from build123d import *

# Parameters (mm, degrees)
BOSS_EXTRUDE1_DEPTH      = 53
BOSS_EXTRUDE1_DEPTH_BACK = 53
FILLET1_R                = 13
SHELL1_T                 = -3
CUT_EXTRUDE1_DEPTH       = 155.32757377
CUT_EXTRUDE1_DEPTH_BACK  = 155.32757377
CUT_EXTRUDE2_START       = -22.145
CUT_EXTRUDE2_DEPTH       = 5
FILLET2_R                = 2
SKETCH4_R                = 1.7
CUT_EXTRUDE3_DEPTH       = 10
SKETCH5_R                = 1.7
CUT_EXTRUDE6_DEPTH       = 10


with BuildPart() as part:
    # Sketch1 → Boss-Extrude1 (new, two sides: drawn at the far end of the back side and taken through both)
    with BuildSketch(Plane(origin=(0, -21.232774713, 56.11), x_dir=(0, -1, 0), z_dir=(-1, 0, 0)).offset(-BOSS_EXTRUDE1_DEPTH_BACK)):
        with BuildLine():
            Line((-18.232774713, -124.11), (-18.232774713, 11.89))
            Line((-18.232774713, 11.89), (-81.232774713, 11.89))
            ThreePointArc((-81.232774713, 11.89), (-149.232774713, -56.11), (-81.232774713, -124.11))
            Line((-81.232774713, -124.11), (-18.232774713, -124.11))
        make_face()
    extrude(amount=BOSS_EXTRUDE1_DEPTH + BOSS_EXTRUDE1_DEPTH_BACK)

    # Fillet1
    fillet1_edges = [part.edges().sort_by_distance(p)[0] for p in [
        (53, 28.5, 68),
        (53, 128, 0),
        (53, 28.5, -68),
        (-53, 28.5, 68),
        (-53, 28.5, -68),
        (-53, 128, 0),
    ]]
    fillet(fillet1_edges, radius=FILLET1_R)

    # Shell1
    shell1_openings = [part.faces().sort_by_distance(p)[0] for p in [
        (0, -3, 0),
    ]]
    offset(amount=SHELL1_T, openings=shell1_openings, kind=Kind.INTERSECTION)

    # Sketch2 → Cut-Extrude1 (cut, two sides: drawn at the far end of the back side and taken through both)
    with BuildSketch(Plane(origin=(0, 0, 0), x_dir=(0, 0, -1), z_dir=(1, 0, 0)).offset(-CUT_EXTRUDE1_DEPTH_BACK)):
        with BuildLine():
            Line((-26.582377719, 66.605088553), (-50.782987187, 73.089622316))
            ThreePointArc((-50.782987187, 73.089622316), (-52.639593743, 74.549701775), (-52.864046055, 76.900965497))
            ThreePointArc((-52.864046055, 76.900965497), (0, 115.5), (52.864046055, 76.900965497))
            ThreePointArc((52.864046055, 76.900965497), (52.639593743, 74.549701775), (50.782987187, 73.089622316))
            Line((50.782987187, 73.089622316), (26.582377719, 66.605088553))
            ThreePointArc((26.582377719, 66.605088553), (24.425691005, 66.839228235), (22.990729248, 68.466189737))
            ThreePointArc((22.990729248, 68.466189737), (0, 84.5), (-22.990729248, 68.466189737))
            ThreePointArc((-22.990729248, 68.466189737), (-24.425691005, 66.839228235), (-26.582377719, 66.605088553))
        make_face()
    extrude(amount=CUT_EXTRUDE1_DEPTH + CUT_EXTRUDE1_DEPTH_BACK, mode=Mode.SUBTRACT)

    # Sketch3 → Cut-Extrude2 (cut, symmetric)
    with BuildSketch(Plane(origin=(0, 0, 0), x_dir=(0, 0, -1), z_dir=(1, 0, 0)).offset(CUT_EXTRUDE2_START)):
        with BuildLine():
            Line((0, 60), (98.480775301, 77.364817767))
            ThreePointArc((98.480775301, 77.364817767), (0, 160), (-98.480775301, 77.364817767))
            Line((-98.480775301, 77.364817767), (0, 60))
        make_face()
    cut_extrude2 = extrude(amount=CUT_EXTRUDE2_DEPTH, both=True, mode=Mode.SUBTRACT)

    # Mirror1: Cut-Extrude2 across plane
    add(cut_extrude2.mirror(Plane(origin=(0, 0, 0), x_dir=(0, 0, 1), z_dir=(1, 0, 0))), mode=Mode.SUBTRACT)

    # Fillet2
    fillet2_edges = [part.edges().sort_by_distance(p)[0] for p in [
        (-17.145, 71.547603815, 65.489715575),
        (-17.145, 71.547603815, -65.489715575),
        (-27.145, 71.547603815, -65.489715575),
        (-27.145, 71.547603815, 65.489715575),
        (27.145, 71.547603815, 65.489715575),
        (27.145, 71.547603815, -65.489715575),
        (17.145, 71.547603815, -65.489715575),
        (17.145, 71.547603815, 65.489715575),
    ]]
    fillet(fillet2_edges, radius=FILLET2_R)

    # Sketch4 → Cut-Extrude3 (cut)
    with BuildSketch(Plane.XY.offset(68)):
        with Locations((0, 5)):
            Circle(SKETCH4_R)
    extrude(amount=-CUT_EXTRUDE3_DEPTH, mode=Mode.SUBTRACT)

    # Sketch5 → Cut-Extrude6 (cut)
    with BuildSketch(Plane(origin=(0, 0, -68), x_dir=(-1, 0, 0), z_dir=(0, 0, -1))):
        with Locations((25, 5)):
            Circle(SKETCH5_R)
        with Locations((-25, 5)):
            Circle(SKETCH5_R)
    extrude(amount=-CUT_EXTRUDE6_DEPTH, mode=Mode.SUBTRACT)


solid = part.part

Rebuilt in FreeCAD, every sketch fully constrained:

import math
import FreeCAD as App
import Part
import Sketcher
from FreeCAD import Vector
Q = App.Units.Quantity


def edges_at(feature, points):
    """Names of the edges that pass closest to the given points."""
    edges = feature.Shape.Edges
    near = lambda p: min(range(len(edges)), key=lambda i: edges[i].distToShape(Part.Vertex(*p))[0])
    return sorted({f"Edge{near(p) + 1}" for p in points})


def faces_at(feature, points):
    """Names of the faces that lie closest to the given points."""
    faces = feature.Shape.Faces
    near = lambda p: min(range(len(faces)), key=lambda i: faces[i].distToShape(Part.Vertex(*p))[0])
    return sorted({f"Face{near(p) + 1}" for p in points})

doc = App.newDocument("Part")
body = doc.addObject("PartDesign::Body", "Body")

# Sketch on YZ plane
sketch1 = body.newObject("Sketcher::SketchObject", "Sketch")
sketch1.AttachmentSupport = (doc.getObject("YZ_Plane"), [""])
sketch1.MapMode = "FlatFace"
sketch1.addGeometry(Part.LineSegment(Vector(-3, -68, 0), Vector(-3, 68, 0)), False)
sketch1.addGeometry(Part.LineSegment(Vector(-3, 68, 0), Vector(60, 68, 0)), False)
sketch1.addGeometry(Part.ArcOfCircle(Part.Circle(Vector(60, 0, 0), Vector(0, 0, 1), 68), math.radians(-90), math.radians(90)), False)
sketch1.addGeometry(Part.LineSegment(Vector(60, -68, 0), Vector(-3, -68, 0)), False)
sketch1.addConstraint(Sketcher.Constraint("Coincident", 0, 2, 1, 1))
sketch1.addConstraint(Sketcher.Constraint("Tangent", 1, 2, 2, 2))
sketch1.addConstraint(Sketcher.Constraint("Tangent", 2, 1, 3, 1))
sketch1.addConstraint(Sketcher.Constraint("Coincident", 3, 2, 0, 1))
sketch1.addConstraint(Sketcher.Constraint("Vertical", 0))
sketch1.addConstraint(Sketcher.Constraint("Horizontal", 1))
sketch1.addConstraint(Sketcher.Constraint("Horizontal", 3))
sketch1.addConstraint(Sketcher.Constraint("PointOnObject", 2, 3, -1))
sketch1.addConstraint(Sketcher.Constraint("Radius", 2, Q("68 mm")))
sketch1.addConstraint(Sketcher.Constraint("DistanceX", 1, 1, 1, 2, Q("63 mm")))
sketch1.addConstraint(Sketcher.Constraint("DistanceX", -1, 1, 2, 3, Q("60 mm")))
pad1 = body.newObject("PartDesign::Pad", "Pad")
pad1.Profile = sketch1
pad1.Type = "TwoLengths"
pad1.Length = 53
pad1.Length2 = 53
pad1.Reversed = True
doc.recompute()

fillet = body.newObject("PartDesign::Fillet", "Fillet")
fillet.Base = (pad1, edges_at(pad1, [
    (53, 28.5, 68),
    (53, 128, 0),
    (53, 28.5, -68),
    (-53, 28.5, 68),
    (-53, 28.5, -68),
    (-53, 128, 0),
]))
fillet.Radius = 13
doc.recompute()

thickness = body.newObject("PartDesign::Thickness", "Thickness")
thickness.Base = (fillet, faces_at(fillet, [(0, -3, 0)]))
thickness.Value = 3
thickness.Reversed = True
thickness.Join = "Intersection"

# Sketch on YZ plane
sketch2 = body.newObject("Sketcher::SketchObject", "Sketch001")
sketch2.AttachmentSupport = (doc.getObject("YZ_Plane"), [""])
sketch2.MapMode = "FlatFace"
sketch2.addGeometry(Part.LineSegment(Vector(73.1, 50.8, 0), Vector(66.6, 26.6, 0)), False)
sketch2.addGeometry(Part.ArcOfCircle(Part.Circle(Vector(69.5, 25.8, 0), Vector(0, 0, 1), 3), math.radians(165), math.radians(250)), False)
sketch2.addGeometry(Part.ArcOfCircle(Part.Circle(Vector(60, 0, 0), Vector(0, 0, 1), 24.5), math.radians(-70), math.radians(70)), False)
sketch2.addGeometry(Part.ArcOfCircle(Part.Circle(Vector(69.5, -25.8, 0), Vector(0, 0, 1), 3), math.radians(110), math.radians(195)), False)
sketch2.addGeometry(Part.LineSegment(Vector(66.6, -26.6, 0), Vector(73.1, -50.8, 0)), False)
sketch2.addGeometry(Part.ArcOfCircle(Part.Circle(Vector(76, -50, 0), Vector(0, 0, 1), 3), math.radians(-165), math.radians(-72)), False)
sketch2.addGeometry(Part.ArcOfCircle(Part.Circle(Vector(60, 0, 0), Vector(0, 0, 1), 55.5), math.radians(-72), math.radians(72)), False)
sketch2.addGeometry(Part.ArcOfCircle(Part.Circle(Vector(76, 50, 0), Vector(0, 0, 1), 3), math.radians(72), math.radians(165)), False)
sketch2.addConstraint(Sketcher.Constraint("Tangent", 0, 2, 1, 1))
sketch2.addConstraint(Sketcher.Constraint("Tangent", 1, 2, 2, 2))
sketch2.addConstraint(Sketcher.Constraint("Tangent", 2, 1, 3, 1))
sketch2.addConstraint(Sketcher.Constraint("Tangent", 3, 2, 4, 1))
sketch2.addConstraint(Sketcher.Constraint("Tangent", 4, 2, 5, 1))
sketch2.addConstraint(Sketcher.Constraint("Tangent", 5, 2, 6, 1))
sketch2.addConstraint(Sketcher.Constraint("Tangent", 6, 2, 7, 1))
sketch2.addConstraint(Sketcher.Constraint("Tangent", 7, 2, 0, 1))
sketch2.addConstraint(Sketcher.Constraint("Coincident", 6, 3, 2, 3))
sketch2.addConstraint(Sketcher.Constraint("Equal", 1, 3))
sketch2.addConstraint(Sketcher.Constraint("Equal", 3, 5))
sketch2.addConstraint(Sketcher.Constraint("Equal", 5, 7))
sketch2.addConstraint(Sketcher.Constraint("Symmetric", 1, 3, 3, 3, -1))
sketch2.addConstraint(Sketcher.Constraint("Vertical", 5, 3, 7, 3))
sketch2.addConstraint(Sketcher.Constraint("Radius", 1, Q("3 mm")))
sketch2.addConstraint(Sketcher.Constraint("Radius", 2, Q("24.5 mm")))
sketch2.addConstraint(Sketcher.Constraint("Radius", 6, Q("55.5 mm")))
sketch2.addConstraint(Sketcher.Constraint("Angle", 0, Q("-105 deg")))
sketch2.addConstraint(Sketcher.Constraint("DistanceX", -1, 1, 2, 3, Q("60 mm")))
sketch2.addConstraint(Sketcher.Constraint("DistanceX", -1, 1, 5, 3, Q("75.9874 mm")))
pocket1 = body.newObject("PartDesign::Pocket", "Pocket")
pocket1.Profile = sketch2
pocket1.Type = "ThroughAll"
pocket1.Midplane = True

# Sketch on YZ plane
sketch3 = body.newObject("Sketcher::SketchObject", "Sketch002")
sketch3.AttachmentSupport = (doc.getObject("YZ_Plane"), [""])
sketch3.MapMode = "FlatFace"
sketch3.AttachmentOffset = App.Placement(Vector(0, 0, -22.145), App.Rotation())
sketch3.addGeometry(Part.LineSegment(Vector(60, 0, 0), Vector(77, -98, 0)), False)
sketch3.addGeometry(Part.ArcOfCircle(Part.Circle(Vector(60, 0, 0), Vector(0, 0, 1), 100), math.radians(-80), math.radians(80)), False)
sketch3.addGeometry(Part.LineSegment(Vector(77, 98, 0), Vector(60, 0, 0)), False)
sketch3.addConstraint(Sketcher.Constraint("Coincident", 0, 2, 1, 1))
sketch3.addConstraint(Sketcher.Constraint("Coincident", 1, 2, 2, 1))
sketch3.addConstraint(Sketcher.Constraint("Coincident", 2, 2, 0, 1))
sketch3.addConstraint(Sketcher.Constraint("Coincident", 2, 2, 1, 3))
sketch3.addConstraint(Sketcher.Constraint("Symmetric", 0, 2, 1, 2, -1))
sketch3.addConstraint(Sketcher.Constraint("Radius", 1, Q("100 mm")))
sketch3.addConstraint(Sketcher.Constraint("Angle", 0, Q("-80 deg")))
sketch3.addConstraint(Sketcher.Constraint("DistanceX", -1, 1, 1, 3, Q("60 mm")))
pocket2 = body.newObject("PartDesign::Pocket", "Pocket001")
pocket2.Profile = sketch3
pocket2.Length = 10
pocket2.Midplane = True
doc.recompute()

mirrored = body.newObject("PartDesign::Mirrored", "Mirrored")
mirrored.Originals = [pocket2]
mirrored.MirrorPlane = (doc.getObject("YZ_Plane"), [""])
body.Tip = mirrored
doc.recompute()

fillet2 = body.newObject("PartDesign::Fillet", "Fillet001")
fillet2.Base = (mirrored, edges_at(mirrored, [
    (-17.145, 71.548, 65.49),
    (-17.145, 71.548, -65.49),
    (-27.145, 71.548, -65.49),
    (-27.145, 71.548, 65.49),
    (27.145, 71.548, 65.49),
    (27.145, 71.548, -65.49),
    (17.145, 71.548, -65.49),
    (17.145, 71.548, 65.49),
]))
fillet2.Radius = 2

# Sketch on XY plane
sketch4 = body.newObject("Sketcher::SketchObject", "Sketch003")
sketch4.AttachmentSupport = (doc.getObject("XY_Plane"), [""])
sketch4.MapMode = "FlatFace"
sketch4.AttachmentOffset = App.Placement(Vector(0, 0, 68), App.Rotation())
sketch4.addGeometry(Part.Circle(Vector(0, 5, 0), Vector(0, 0, 1), 1.7), False)
sketch4.addConstraint(Sketcher.Constraint("PointOnObject", 0, 3, -2))
sketch4.addConstraint(Sketcher.Constraint("Diameter", 0, Q("3.4 mm")))
sketch4.addConstraint(Sketcher.Constraint("DistanceY", -1, 1, 0, 3, Q("5 mm")))
pocket3 = body.newObject("PartDesign::Pocket", "Pocket002")
pocket3.Profile = sketch4
pocket3.Length = 10

# Sketch on XY plane
sketch5 = body.newObject("Sketcher::SketchObject", "Sketch004")
sketch5.AttachmentSupport = (doc.getObject("XY_Plane"), [""])
sketch5.MapMode = "FlatFace"
sketch5.AttachmentOffset = App.Placement(Vector(0, 0, -68), App.Rotation())
sketch5.addGeometry(Part.Circle(Vector(-25, 5, 0), Vector(0, 0, 1), 1.7), False)
sketch5.addGeometry(Part.Circle(Vector(25, 5, 0), Vector(0, 0, 1), 1.7), False)
sketch5.addConstraint(Sketcher.Constraint("Equal", 0, 1))
sketch5.addConstraint(Sketcher.Constraint("Symmetric", 0, 3, 1, 3, -2))
sketch5.addConstraint(Sketcher.Constraint("Diameter", 0, Q("3.4 mm")))
sketch5.addConstraint(Sketcher.Constraint("DistanceX", 0, 3, -1, 1, Q("25 mm")))
sketch5.addConstraint(Sketcher.Constraint("DistanceY", -1, 1, 0, 3, Q("5 mm")))
pocket4 = body.newObject("PartDesign::Pocket", "Pocket003")
pocket4.Profile = sketch5
pocket4.Length = 10
pocket4.Reversed = True

doc.recompute()
